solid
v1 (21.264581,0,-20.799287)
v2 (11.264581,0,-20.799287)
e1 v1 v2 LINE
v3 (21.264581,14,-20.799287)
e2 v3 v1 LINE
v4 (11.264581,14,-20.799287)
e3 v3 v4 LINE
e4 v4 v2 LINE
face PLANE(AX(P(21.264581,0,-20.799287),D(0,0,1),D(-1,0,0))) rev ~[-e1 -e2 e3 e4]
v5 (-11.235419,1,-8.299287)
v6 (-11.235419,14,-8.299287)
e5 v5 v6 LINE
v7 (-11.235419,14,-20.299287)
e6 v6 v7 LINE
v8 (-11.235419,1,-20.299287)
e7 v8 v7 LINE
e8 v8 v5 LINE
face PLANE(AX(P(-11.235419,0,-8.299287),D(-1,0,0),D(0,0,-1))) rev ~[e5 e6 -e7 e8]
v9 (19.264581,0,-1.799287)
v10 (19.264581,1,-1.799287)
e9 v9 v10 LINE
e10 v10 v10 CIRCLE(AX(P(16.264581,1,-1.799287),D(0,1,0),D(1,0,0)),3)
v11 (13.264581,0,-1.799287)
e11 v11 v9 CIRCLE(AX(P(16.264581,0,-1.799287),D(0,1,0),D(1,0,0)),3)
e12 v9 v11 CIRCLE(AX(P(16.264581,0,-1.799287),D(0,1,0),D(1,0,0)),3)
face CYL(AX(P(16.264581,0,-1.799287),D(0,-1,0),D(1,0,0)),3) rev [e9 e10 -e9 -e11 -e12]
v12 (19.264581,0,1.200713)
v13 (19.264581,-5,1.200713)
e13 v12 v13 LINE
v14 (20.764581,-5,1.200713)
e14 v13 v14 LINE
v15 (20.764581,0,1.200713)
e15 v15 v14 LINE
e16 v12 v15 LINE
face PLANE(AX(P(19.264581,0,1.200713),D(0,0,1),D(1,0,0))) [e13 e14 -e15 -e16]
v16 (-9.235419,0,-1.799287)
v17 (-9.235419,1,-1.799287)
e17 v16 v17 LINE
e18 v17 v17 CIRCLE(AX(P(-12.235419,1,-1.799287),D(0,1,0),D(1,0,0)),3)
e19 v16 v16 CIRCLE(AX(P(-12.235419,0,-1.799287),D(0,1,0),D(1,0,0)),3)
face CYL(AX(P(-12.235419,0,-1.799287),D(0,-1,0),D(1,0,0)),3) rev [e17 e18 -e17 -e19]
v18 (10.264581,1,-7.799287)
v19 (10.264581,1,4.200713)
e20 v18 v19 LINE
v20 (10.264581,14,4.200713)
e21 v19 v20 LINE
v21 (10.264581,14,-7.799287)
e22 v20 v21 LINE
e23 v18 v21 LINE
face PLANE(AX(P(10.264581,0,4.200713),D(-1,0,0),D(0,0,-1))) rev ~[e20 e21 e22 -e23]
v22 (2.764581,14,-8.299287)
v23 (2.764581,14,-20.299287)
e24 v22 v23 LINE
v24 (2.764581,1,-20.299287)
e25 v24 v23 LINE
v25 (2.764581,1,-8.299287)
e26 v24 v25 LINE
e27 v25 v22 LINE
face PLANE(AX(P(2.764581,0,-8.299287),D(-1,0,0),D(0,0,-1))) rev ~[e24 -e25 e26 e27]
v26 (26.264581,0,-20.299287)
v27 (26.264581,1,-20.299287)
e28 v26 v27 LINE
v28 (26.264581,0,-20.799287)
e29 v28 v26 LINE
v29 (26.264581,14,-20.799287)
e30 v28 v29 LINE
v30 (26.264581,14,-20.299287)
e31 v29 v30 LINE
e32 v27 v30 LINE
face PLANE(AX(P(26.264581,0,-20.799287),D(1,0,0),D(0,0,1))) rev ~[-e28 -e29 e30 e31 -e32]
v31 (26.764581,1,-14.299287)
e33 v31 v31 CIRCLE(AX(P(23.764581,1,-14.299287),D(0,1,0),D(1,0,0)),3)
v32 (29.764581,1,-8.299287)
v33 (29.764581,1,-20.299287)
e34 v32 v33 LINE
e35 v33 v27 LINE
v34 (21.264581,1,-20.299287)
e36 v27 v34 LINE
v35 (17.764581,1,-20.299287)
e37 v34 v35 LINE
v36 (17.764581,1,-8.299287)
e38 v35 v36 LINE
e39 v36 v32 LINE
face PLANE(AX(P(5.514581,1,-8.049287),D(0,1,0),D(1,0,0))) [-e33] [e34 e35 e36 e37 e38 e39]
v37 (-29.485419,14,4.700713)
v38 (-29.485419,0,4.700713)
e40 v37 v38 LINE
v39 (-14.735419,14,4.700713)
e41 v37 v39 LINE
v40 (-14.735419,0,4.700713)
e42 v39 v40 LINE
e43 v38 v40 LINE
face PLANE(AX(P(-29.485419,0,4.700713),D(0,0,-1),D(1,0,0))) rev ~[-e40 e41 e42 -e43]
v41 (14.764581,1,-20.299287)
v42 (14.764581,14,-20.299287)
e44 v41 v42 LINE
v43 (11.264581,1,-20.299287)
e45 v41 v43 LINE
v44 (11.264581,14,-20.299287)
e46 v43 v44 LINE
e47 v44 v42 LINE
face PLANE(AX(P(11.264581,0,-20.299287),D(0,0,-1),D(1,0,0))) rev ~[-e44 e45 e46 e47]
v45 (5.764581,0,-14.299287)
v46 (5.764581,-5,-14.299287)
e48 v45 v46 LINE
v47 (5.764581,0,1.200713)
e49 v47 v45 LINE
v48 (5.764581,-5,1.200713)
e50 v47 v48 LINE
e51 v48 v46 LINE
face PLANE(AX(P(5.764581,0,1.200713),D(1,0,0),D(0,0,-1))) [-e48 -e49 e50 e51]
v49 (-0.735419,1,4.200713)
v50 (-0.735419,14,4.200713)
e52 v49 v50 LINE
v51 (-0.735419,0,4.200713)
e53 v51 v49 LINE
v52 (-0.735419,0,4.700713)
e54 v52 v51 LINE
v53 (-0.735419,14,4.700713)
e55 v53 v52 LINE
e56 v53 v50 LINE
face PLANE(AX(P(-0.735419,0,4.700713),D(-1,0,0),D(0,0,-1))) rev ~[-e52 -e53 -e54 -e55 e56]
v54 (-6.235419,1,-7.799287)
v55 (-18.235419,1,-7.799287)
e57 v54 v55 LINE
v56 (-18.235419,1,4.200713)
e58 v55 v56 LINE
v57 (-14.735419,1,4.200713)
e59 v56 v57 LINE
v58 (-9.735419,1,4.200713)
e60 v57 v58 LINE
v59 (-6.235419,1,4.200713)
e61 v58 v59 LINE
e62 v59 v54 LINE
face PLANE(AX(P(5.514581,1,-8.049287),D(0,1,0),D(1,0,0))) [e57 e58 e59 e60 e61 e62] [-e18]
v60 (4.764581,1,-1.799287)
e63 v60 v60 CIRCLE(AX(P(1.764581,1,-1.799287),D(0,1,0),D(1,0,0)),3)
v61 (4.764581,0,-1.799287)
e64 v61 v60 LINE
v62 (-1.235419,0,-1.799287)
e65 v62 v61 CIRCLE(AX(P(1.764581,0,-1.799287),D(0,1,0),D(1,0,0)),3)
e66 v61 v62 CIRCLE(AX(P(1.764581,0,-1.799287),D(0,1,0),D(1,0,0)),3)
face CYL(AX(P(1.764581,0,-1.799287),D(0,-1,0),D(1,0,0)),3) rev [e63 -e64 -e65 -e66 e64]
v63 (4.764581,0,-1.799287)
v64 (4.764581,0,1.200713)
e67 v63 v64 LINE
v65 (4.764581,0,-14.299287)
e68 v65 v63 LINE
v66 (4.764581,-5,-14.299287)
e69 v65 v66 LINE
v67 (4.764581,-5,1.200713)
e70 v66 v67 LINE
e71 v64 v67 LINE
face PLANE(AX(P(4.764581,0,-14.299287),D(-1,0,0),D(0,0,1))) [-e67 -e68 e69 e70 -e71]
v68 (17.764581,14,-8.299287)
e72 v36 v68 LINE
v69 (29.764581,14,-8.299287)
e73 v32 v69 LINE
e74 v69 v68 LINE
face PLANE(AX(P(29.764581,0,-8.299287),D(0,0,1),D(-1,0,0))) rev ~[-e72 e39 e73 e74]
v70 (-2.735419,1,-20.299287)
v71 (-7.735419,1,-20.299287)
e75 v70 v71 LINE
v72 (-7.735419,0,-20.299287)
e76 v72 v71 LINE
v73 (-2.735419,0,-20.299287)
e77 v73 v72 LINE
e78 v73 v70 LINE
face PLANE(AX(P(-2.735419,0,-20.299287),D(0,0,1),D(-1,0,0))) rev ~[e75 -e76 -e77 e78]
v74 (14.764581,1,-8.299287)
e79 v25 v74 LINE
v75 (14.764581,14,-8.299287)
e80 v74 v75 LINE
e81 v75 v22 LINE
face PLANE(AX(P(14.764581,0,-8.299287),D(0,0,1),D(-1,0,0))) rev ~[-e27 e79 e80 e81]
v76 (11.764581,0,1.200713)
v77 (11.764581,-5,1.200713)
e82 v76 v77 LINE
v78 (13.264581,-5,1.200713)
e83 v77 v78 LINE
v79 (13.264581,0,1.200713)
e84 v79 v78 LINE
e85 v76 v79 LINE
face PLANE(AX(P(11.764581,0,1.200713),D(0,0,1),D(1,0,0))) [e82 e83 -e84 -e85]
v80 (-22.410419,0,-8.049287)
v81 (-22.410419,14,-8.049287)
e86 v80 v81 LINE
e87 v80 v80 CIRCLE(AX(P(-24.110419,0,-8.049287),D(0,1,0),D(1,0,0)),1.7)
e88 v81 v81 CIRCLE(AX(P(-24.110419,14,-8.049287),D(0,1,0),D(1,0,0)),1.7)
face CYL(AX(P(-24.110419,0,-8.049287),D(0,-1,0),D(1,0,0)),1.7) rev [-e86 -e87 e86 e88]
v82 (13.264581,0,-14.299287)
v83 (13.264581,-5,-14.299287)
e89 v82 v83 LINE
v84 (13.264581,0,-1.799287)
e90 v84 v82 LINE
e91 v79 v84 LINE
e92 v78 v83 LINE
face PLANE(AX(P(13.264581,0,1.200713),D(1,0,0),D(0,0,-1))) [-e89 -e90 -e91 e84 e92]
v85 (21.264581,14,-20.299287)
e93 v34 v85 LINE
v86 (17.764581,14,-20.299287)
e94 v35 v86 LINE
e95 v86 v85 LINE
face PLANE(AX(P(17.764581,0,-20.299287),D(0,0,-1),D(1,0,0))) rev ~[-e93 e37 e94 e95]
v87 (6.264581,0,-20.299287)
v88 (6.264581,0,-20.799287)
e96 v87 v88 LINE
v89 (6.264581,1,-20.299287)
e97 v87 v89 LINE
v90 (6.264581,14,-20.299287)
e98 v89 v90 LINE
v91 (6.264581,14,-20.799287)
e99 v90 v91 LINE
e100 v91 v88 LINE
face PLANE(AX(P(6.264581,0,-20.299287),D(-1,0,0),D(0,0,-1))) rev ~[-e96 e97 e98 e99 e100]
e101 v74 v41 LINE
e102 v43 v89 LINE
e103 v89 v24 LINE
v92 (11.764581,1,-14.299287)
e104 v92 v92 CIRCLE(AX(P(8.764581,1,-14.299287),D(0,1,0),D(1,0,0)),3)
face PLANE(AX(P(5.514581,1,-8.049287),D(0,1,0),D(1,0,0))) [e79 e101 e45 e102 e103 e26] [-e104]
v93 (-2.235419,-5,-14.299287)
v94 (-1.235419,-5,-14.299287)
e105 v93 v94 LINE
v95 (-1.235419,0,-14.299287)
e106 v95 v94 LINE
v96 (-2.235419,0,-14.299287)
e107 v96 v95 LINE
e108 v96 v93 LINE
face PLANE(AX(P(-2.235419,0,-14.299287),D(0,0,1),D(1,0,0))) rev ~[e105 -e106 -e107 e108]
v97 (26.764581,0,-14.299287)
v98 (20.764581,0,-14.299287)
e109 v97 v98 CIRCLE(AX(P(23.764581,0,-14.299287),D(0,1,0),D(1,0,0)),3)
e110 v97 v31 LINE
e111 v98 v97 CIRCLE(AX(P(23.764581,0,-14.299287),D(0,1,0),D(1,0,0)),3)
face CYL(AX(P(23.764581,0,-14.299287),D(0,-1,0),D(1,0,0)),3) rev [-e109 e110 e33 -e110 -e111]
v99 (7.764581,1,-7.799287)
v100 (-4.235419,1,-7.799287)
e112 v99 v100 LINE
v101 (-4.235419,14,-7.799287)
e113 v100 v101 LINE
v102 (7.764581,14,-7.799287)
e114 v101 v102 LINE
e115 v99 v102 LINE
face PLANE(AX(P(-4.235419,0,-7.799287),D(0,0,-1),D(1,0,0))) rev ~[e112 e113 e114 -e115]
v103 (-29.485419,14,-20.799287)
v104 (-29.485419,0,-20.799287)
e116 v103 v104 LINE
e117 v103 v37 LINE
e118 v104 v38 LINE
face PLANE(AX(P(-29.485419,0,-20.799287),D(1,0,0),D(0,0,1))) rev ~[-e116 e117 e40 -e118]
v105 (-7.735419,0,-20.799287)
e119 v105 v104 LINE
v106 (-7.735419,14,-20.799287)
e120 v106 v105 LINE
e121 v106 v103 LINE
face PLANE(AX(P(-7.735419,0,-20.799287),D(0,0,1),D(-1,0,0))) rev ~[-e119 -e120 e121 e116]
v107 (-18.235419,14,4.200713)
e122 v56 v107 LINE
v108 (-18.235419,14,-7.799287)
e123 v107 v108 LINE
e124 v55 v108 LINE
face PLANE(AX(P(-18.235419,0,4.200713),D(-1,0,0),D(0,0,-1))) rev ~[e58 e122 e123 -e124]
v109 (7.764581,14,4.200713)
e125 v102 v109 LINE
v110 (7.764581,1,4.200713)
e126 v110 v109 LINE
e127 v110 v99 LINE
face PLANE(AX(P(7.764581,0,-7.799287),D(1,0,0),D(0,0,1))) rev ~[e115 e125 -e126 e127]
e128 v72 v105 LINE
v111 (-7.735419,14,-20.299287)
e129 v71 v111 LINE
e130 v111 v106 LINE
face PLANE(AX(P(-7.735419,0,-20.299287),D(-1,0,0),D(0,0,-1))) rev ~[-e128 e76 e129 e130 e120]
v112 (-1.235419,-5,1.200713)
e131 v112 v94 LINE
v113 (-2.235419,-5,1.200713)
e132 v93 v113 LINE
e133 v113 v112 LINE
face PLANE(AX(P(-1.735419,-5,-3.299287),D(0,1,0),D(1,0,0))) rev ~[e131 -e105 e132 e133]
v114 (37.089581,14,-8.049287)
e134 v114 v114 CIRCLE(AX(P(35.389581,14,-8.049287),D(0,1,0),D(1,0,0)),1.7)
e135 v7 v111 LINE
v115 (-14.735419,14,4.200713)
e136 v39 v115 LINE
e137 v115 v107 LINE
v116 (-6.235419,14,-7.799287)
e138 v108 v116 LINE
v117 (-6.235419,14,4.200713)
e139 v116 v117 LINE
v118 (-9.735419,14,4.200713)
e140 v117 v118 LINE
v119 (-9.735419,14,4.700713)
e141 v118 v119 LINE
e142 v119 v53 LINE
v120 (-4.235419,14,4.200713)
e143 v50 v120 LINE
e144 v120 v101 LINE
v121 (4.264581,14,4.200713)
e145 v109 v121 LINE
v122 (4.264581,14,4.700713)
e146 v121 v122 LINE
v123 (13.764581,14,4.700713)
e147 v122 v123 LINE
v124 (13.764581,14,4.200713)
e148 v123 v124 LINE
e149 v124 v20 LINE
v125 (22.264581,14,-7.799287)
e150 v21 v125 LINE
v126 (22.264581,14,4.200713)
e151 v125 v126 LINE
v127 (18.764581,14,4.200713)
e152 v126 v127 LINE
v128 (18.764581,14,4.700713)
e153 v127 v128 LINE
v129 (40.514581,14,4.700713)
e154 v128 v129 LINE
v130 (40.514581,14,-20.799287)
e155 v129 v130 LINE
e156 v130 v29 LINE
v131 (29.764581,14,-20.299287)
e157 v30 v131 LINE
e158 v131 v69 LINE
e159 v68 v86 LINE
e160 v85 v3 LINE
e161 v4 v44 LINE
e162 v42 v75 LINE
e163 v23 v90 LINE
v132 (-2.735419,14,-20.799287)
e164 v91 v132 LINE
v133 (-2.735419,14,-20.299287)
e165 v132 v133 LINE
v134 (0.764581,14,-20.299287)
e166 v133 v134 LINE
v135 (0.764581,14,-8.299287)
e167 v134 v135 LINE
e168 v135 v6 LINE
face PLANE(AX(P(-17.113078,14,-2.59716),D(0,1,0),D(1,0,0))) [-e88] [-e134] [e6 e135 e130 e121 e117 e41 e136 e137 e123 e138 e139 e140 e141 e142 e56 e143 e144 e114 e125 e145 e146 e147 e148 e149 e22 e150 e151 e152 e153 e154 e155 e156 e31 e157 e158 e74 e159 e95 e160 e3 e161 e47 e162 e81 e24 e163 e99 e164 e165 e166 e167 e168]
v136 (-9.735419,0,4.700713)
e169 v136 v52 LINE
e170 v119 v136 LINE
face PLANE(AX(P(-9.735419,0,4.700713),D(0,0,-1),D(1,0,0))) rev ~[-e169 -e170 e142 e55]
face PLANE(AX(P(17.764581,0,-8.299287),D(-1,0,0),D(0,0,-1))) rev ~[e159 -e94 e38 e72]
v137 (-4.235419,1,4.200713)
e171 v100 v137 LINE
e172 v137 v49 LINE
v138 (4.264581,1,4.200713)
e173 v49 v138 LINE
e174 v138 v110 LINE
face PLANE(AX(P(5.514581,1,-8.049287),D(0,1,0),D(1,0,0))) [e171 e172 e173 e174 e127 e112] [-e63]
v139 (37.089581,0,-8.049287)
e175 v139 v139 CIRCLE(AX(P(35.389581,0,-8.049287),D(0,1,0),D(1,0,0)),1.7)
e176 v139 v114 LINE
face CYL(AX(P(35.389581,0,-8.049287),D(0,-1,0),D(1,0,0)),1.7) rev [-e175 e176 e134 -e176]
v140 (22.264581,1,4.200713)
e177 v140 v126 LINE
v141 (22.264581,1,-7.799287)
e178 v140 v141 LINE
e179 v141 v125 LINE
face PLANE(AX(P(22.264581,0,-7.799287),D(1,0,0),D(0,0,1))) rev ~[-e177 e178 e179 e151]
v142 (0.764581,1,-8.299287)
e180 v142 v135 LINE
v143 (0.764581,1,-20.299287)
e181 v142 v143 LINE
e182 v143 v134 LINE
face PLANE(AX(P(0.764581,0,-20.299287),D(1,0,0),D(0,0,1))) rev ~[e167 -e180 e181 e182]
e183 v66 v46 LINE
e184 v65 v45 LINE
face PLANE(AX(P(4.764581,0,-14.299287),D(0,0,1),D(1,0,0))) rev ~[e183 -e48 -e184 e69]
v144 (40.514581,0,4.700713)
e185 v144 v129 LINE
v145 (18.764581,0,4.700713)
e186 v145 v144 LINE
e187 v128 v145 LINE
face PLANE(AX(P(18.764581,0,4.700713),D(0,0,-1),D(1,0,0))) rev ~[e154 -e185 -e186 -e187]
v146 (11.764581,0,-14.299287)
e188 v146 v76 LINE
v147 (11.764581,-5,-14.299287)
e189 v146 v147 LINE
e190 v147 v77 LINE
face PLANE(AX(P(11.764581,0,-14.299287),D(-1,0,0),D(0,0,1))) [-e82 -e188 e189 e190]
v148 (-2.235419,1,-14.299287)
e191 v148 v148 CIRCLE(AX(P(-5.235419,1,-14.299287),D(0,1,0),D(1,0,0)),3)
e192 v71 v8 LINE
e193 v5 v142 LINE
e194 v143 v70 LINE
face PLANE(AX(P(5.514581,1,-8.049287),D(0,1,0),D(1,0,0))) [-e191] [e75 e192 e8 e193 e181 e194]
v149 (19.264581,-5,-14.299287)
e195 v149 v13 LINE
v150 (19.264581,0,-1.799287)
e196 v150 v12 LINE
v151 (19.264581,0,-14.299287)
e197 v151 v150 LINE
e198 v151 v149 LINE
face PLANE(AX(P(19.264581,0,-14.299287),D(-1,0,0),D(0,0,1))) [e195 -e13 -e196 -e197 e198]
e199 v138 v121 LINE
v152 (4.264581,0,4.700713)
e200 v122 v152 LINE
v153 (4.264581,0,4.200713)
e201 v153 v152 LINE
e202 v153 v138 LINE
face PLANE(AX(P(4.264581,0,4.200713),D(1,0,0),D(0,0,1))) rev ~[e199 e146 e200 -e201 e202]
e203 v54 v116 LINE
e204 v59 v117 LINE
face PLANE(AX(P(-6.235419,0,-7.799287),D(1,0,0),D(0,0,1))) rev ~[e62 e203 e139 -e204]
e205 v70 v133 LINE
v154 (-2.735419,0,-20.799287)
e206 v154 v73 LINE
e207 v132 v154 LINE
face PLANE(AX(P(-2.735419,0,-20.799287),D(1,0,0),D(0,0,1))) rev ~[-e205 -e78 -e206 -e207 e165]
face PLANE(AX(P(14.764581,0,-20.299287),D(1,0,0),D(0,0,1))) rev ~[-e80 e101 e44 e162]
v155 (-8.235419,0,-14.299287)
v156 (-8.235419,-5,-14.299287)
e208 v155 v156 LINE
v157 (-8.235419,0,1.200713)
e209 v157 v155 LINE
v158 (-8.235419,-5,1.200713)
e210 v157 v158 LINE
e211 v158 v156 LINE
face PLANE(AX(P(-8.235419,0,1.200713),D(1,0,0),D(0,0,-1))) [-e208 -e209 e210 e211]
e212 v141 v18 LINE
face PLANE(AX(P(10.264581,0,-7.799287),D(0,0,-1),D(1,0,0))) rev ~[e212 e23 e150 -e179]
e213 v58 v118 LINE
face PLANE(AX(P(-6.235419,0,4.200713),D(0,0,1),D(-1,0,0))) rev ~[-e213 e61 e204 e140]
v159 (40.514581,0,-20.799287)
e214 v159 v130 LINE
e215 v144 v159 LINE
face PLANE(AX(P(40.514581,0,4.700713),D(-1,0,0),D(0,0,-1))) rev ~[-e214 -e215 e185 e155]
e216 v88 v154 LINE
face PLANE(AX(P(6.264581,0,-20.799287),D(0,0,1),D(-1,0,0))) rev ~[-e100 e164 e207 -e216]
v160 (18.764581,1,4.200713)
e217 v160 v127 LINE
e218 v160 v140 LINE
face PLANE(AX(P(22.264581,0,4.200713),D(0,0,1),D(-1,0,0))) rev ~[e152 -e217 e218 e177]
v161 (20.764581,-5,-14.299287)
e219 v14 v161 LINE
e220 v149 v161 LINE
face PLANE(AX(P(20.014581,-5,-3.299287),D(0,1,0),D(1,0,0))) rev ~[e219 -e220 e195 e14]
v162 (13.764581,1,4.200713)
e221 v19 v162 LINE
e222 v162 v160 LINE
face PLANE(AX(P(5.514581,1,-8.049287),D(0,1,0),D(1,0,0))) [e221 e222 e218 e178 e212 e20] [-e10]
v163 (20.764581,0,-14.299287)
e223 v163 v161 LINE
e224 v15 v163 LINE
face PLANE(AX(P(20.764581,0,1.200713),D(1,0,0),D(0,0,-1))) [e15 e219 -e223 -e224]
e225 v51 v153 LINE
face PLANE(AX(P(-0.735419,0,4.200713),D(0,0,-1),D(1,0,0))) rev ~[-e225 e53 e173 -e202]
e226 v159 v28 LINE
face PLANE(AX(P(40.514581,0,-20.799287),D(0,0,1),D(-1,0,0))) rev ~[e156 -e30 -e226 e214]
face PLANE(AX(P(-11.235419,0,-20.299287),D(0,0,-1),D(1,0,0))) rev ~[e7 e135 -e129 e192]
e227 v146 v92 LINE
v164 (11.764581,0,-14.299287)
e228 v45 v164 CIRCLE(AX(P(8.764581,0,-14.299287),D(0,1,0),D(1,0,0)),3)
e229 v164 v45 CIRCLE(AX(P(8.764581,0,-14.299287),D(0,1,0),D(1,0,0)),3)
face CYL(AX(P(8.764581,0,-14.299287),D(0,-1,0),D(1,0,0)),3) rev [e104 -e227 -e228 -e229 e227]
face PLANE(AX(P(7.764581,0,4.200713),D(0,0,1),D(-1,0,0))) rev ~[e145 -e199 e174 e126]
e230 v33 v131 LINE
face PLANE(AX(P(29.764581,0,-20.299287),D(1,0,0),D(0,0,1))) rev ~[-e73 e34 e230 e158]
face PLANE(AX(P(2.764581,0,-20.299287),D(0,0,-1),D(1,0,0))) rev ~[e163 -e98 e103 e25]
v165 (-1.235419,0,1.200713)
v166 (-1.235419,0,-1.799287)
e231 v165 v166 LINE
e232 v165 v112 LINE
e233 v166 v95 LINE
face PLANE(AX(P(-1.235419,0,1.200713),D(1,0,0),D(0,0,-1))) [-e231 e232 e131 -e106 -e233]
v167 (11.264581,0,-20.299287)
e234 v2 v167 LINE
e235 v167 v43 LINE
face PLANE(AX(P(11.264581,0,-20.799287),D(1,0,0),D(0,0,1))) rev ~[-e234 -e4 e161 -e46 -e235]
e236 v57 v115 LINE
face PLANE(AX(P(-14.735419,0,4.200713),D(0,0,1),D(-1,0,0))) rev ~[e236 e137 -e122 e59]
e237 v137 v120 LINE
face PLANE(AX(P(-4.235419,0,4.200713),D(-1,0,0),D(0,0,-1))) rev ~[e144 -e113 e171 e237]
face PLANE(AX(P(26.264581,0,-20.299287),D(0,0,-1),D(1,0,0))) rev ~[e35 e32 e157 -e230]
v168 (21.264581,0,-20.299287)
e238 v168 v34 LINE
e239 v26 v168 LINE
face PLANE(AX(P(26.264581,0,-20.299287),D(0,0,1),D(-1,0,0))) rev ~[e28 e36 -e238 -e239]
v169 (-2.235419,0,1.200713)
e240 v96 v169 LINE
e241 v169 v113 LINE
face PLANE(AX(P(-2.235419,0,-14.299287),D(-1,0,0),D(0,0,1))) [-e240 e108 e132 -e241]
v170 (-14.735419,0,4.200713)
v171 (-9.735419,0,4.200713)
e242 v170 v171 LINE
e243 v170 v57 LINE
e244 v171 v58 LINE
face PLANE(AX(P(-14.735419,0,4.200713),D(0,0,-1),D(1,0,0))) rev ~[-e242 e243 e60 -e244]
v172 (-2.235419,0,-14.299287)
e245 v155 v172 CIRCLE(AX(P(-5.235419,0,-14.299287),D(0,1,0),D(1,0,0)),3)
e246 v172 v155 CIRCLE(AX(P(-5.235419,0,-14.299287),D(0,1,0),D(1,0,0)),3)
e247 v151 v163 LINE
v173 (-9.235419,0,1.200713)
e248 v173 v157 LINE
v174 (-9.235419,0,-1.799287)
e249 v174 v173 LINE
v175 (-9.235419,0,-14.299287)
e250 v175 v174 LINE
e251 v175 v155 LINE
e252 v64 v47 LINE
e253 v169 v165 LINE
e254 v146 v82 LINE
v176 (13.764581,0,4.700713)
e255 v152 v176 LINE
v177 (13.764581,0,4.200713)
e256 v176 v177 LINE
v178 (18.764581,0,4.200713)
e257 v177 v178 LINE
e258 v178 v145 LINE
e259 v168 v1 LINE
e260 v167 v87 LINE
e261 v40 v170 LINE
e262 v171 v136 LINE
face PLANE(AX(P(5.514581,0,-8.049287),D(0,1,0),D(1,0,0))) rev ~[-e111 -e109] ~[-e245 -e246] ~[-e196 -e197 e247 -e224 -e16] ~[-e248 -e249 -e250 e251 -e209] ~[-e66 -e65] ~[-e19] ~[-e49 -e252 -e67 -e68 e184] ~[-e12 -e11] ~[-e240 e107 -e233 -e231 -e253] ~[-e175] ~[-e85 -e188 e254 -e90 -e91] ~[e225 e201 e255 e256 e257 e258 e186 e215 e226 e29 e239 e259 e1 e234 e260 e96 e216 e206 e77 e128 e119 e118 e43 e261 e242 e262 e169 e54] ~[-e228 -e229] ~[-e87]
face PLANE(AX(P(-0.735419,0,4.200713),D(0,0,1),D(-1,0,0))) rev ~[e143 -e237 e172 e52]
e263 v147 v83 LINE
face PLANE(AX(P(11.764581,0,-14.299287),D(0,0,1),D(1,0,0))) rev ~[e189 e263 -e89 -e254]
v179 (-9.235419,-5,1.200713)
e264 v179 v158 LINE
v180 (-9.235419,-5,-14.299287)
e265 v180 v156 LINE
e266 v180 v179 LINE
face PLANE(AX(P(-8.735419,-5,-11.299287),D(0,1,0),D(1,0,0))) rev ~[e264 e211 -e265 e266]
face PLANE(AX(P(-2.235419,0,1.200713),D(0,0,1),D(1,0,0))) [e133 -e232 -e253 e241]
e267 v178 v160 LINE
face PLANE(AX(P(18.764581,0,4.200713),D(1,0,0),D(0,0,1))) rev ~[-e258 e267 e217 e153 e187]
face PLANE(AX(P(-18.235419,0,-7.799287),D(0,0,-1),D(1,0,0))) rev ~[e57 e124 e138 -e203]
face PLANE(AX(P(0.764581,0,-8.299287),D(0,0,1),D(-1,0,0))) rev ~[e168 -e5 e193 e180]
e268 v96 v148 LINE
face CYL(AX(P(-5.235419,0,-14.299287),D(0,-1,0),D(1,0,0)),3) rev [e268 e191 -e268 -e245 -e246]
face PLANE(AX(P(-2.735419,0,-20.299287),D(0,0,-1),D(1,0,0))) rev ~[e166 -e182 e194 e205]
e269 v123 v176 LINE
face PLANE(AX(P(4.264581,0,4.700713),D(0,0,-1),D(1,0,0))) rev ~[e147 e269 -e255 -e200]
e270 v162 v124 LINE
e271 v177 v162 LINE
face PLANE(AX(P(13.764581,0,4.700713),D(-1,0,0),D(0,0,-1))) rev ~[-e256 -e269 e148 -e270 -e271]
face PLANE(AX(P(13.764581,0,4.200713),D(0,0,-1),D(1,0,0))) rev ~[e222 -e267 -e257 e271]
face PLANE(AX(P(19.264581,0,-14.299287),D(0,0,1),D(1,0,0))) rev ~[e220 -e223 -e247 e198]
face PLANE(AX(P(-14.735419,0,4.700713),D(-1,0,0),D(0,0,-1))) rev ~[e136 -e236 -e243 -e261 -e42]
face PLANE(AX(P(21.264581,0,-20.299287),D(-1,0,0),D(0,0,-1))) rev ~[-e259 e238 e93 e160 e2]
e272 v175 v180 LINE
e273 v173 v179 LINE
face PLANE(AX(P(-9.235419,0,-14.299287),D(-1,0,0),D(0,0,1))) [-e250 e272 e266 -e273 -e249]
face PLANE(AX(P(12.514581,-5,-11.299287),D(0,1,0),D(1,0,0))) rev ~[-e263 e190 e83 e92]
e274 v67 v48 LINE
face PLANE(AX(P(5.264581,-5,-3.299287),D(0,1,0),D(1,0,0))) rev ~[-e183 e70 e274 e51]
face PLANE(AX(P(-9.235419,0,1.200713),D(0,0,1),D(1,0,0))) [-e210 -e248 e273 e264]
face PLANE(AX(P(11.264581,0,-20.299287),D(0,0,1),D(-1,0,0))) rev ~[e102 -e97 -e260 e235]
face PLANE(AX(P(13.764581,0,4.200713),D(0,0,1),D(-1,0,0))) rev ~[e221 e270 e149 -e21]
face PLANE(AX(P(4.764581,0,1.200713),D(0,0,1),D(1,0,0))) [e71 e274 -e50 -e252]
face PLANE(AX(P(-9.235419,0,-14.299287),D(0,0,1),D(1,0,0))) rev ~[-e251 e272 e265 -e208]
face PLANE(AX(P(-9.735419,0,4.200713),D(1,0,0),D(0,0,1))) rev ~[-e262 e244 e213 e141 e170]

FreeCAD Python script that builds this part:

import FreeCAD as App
import Part
import Sketcher

V = App.Vector
Q = App.Units.Quantity


def add_polygon(sketch, points):
    """Adds a closed chain of lines whose ends are joined by coincident constraints."""
    first, n = sketch.GeometryCount, len(points)
    for a, b in zip(points, points[1:] + points[:1]):
        sketch.addGeometry(Part.LineSegment(App.Vector(*a, 0), App.Vector(*b, 0)), False)
    for i in range(n):
        sketch.addConstraint(Sketcher.Constraint("Coincident", first + i, 2, first + (i + 1) % n, 1))

doc = App.newDocument("Part")
body = doc.addObject("PartDesign::Body", "Body")

# Sketch on XZ plane
sketch1 = doc.addObject("Sketcher::SketchObject", "Sketch")
body.addObject(sketch1)
sketch1.AttachmentSupport = (doc.XZ_Plane, [""])
sketch1.MapMode = "FlatFace"
add_polygon(sketch1, [(18.8, 4.7), (40.5, 4.7), (40.5, -20.8), (26.3, -20.8), (26.3, -20.3), (21.3, -20.3), (21.3, -20.8), (11.3, -20.8), (11.3, -20.3), (6.3, -20.3), (6.3, -20.8), (-2.7, -20.8), (-2.7, -20.3), (-7.7, -20.3), (-7.7, -20.8), (-29.5, -20.8), (-29.5, 4.7), (-14.7, 4.7), (-14.7, 4.2), (-9.7, 4.2), (-9.7, 4.7), (-0.7, 4.7), (-0.7, 4.2), (4.3, 4.2), (4.3, 4.7), (13.8, 4.7), (13.8, 4.2), (18.8, 4.2)])  # lines 0-27
sketch1.addGeometry(Part.Circle(V(-12.2, -1.8, 0), V(0, 0, 1), 3), False)  # 28
sketch1.addGeometry(Part.Circle(V(1.8, -1.8, 0), V(0, 0, 1), 3), False)  # 29
sketch1.addGeometry(Part.Circle(V(16.3, -1.8, 0), V(0, 0, 1), 3), False)  # 30
sketch1.addGeometry(Part.Circle(V(-24.1, -8, 0), V(0, 0, 1), 1.7), False)  # 31
sketch1.addGeometry(Part.Circle(V(-5.2, -14.3, 0), V(0, 0, 1), 3), False)  # 32
sketch1.addGeometry(Part.Circle(V(35.4, -8, 0), V(0, 0, 1), 1.7), False)  # 33
sketch1.addGeometry(Part.Circle(V(8.8, -14.3, 0), V(0, 0, 1), 3), False)  # 34
sketch1.addGeometry(Part.Circle(V(23.8, -14.3, 0), V(0, 0, 1), 3), False)  # 35
sketch1.addConstraint(Sketcher.Constraint("Horizontal", 0))
sketch1.addConstraint(Sketcher.Constraint("Vertical", 1))
sketch1.addConstraint(Sketcher.Constraint("Horizontal", 2))
sketch1.addConstraint(Sketcher.Constraint("Vertical", 3))
sketch1.addConstraint(Sketcher.Constraint("Horizontal", 4))
sketch1.addConstraint(Sketcher.Constraint("Vertical", 5))
sketch1.addConstraint(Sketcher.Constraint("Horizontal", 6))
sketch1.addConstraint(Sketcher.Constraint("Vertical", 7))
sketch1.addConstraint(Sketcher.Constraint("Horizontal", 8))
sketch1.addConstraint(Sketcher.Constraint("Vertical", 9))
sketch1.addConstraint(Sketcher.Constraint("Horizontal", 10))
sketch1.addConstraint(Sketcher.Constraint("Vertical", 11))
sketch1.addConstraint(Sketcher.Constraint("Horizontal", 12))
sketch1.addConstraint(Sketcher.Constraint("Vertical", 13))
sketch1.addConstraint(Sketcher.Constraint("Horizontal", 14))
sketch1.addConstraint(Sketcher.Constraint("Vertical", 15))
sketch1.addConstraint(Sketcher.Constraint("Horizontal", 16))
sketch1.addConstraint(Sketcher.Constraint("Vertical", 17))
sketch1.addConstraint(Sketcher.Constraint("Horizontal", 18))
sketch1.addConstraint(Sketcher.Constraint("Vertical", 19))
sketch1.addConstraint(Sketcher.Constraint("Horizontal", 20))
sketch1.addConstraint(Sketcher.Constraint("Vertical", 21))
sketch1.addConstraint(Sketcher.Constraint("Horizontal", 22))
sketch1.addConstraint(Sketcher.Constraint("Vertical", 23))
sketch1.addConstraint(Sketcher.Constraint("Horizontal", 24))
sketch1.addConstraint(Sketcher.Constraint("Vertical", 25))
sketch1.addConstraint(Sketcher.Constraint("Horizontal", 26))
sketch1.addConstraint(Sketcher.Constraint("Vertical", 27))
sketch1.addConstraint(Sketcher.Constraint("Equal", 28, 29))
sketch1.addConstraint(Sketcher.Constraint("Equal", 29, 30))
sketch1.addConstraint(Sketcher.Constraint("Equal", 30, 32))
sketch1.addConstraint(Sketcher.Constraint("Equal", 31, 33))
sketch1.addConstraint(Sketcher.Constraint("Equal", 32, 34))
sketch1.addConstraint(Sketcher.Constraint("Equal", 34, 35))
sketch1.addConstraint(Sketcher.Constraint("Horizontal", 28, 3, 29, 3))
sketch1.addConstraint(Sketcher.Constraint("Horizontal", 29, 3, 30, 3))
sketch1.addConstraint(Sketcher.Constraint("Horizontal", 31, 3, 33, 3))
sketch1.addConstraint(Sketcher.Constraint("Horizontal", 32, 3, 34, 3))
sketch1.addConstraint(Sketcher.Constraint("Horizontal", 34, 3, 35, 3))
sketch1.addConstraint(Sketcher.Constraint("Horizontal", 2, 2, 5, 2))
sketch1.addConstraint(Sketcher.Constraint("Horizontal", 4, 2, 7, 2))
sketch1.addConstraint(Sketcher.Constraint("Horizontal", 6, 2, 9, 2))
sketch1.addConstraint(Sketcher.Constraint("Horizontal", 8, 2, 11, 2))
sketch1.addConstraint(Sketcher.Constraint("Horizontal", 10, 2, 13, 2))
sketch1.addConstraint(Sketcher.Constraint("Horizontal", 0, 2, 15, 2))
sketch1.addConstraint(Sketcher.Constraint("Horizontal", 16, 2, 19, 2))
sketch1.addConstraint(Sketcher.Constraint("Horizontal", 18, 2, 21, 2))
sketch1.addConstraint(Sketcher.Constraint("Horizontal", 20, 2, 23, 2))
sketch1.addConstraint(Sketcher.Constraint("Horizontal", 22, 2, 25, 2))
sketch1.addConstraint(Sketcher.Constraint("Equal", 4, 8))
sketch1.addConstraint(Sketcher.Constraint("Equal", 8, 12))
sketch1.addConstraint(Sketcher.Constraint("Equal", 0, 14))
sketch1.addConstraint(Sketcher.Constraint("Equal", 12, 18))
sketch1.addConstraint(Sketcher.Constraint("Equal", 10, 20))
sketch1.addConstraint(Sketcher.Constraint("Equal", 18, 22))
sketch1.addConstraint(Sketcher.Constraint("Equal", 22, 26))
sketch1.addConstraint(Sketcher.Constraint("Equal", 13, 17))
sketch1.addConstraint(Sketcher.Constraint("Diameter", 28, Q("6 mm")))
sketch1.addConstraint(Sketcher.Constraint("Diameter", 31, Q("3.4 mm")))
sketch1.addConstraint(Sketcher.Constraint("DistanceX", 4, 2, 4, 1, Q("5 mm")))
sketch1.addConstraint(Sketcher.Constraint("DistanceX", 6, 2, 6, 1, Q("10 mm")))
sketch1.addConstraint(Sketcher.Constraint("DistanceX", 10, 2, 10, 1, Q("9 mm")))
sketch1.addConstraint(Sketcher.Constraint("DistanceX", 24, 1, 24, 2, Q("9.5 mm")))
sketch1.addConstraint(Sketcher.Constraint("DistanceY", 1, 2, 1, 1, Q("25.5 mm")))
sketch1.addConstraint(Sketcher.Constraint("DistanceY", 3, 1, 3, 2, Q("0.5 mm")))
sketch1.addConstraint(Sketcher.Constraint("DistanceX", 28, 3, 29, 3, Q("14 mm")))
sketch1.addConstraint(Sketcher.Constraint("DistanceX", 28, 3, 32, 3, Q("7 mm")))
sketch1.addConstraint(Sketcher.Constraint("DistanceX", 32, 3, 34, 3, Q("14 mm")))
sketch1.addConstraint(Sketcher.Constraint("DistanceX", 34, 3, 35, 3, Q("15 mm")))
sketch1.addConstraint(Sketcher.Constraint("DistanceY", 35, 3, 0, 2, Q("19 mm")))
sketch1.addConstraint(Sketcher.Constraint("DistanceY", 1, 2, 30, 3, Q("19 mm")))
sketch1.addConstraint(Sketcher.Constraint("DistanceX", 30, 3, 2, 2, Q("10 mm")))
sketch1.addConstraint(Sketcher.Constraint("DistanceX", 22, 2, 30, 3, Q("12 mm")))
sketch1.addConstraint(Sketcher.Constraint("DistanceX", 29, 3, 24, 2, Q("12 mm")))
sketch1.addConstraint(Sketcher.Constraint("DistanceX", 0, 1, 0, 2, Q("21.75 mm")))
sketch1.addConstraint(Sketcher.Constraint("DistanceX", 31, 3, 33, 3, Q("59.5 mm")))
sketch1.addConstraint(Sketcher.Constraint("DistanceY", 31, 3, 28, 3, Q("6.25 mm")))
sketch1.addConstraint(Sketcher.Constraint("DistanceX", 31, 3, 28, 3, Q("11.875 mm")))
sketch1.addConstraint(Sketcher.Constraint("DistanceX", 28, 3, -1, 1, Q("12.235419 mm")))
sketch1.addConstraint(Sketcher.Constraint("DistanceY", 28, 3, -1, 1, Q("1.799287 mm")))
pad1 = doc.addObject("PartDesign::Pad", "Pad")
body.addObject(pad1)
pad1.Profile = sketch1
pad1.Length = 1
pad1.Reversed = True

# Sketch on XZ plane
sketch2 = doc.addObject("Sketcher::SketchObject", "Sketch001")
body.addObject(sketch2)
sketch2.AttachmentSupport = (doc.XZ_Plane, [""])
sketch2.MapMode = "FlatFace"
add_polygon(sketch2, [(-18.2, 4.2), (-18.2, -7.8), (-6.2, -7.8), (-6.2, 4.2), (-9.7, 4.2), (-9.7, 4.7), (-0.7, 4.7), (-0.7, 4.2), (-4.2, 4.2), (-4.2, -7.8), (7.8, -7.8), (7.8, 4.2), (4.3, 4.2), (4.3, 4.7), (13.8, 4.7), (13.8, 4.2), (10.3, 4.2), (10.3, -7.8), (22.3, -7.8), (22.3, 4.2), (18.8, 4.2), (18.8, 4.7), (40.5, 4.7), (40.5, -20.8), (26.3, -20.8), (26.3, -20.3), (29.8, -20.3), (29.8, -8.3), (17.8, -8.3), (17.8, -20.3), (21.3, -20.3), (21.3, -20.8), (11.3, -20.8), (11.3, -20.3), (14.8, -20.3), (14.8, -8.3), (2.8, -8.3), (2.8, -20.3), (6.3, -20.3), (6.3, -20.8), (-2.7, -20.8), (-2.7, -20.3), (0.8, -20.3), (0.8, -8.3), (-11.2, -8.3), (-11.2, -20.3), (-7.7, -20.3), (-7.7, -20.8), (-29.5, -20.8), (-29.5, 4.7), (-14.7, 4.7), (-14.7, 4.2)])  # lines 0-51
sketch2.addGeometry(Part.Circle(V(-24.1, -8, 0), V(0, 0, 1), 1.7), False)  # 52
sketch2.addGeometry(Part.Circle(V(35.4, -8, 0), V(0, 0, 1), 1.7), False)  # 53
sketch2.addConstraint(Sketcher.Constraint("Vertical", 0))
sketch2.addConstraint(Sketcher.Constraint("Horizontal", 1))
sketch2.addConstraint(Sketcher.Constraint("Vertical", 2))
sketch2.addConstraint(Sketcher.Constraint("Horizontal", 3))
sketch2.addConstraint(Sketcher.Constraint("Vertical", 4))
sketch2.addConstraint(Sketcher.Constraint("Horizontal", 5))
sketch2.addConstraint(Sketcher.Constraint("Vertical", 6))
sketch2.addConstraint(Sketcher.Constraint("Horizontal", 7))
sketch2.addConstraint(Sketcher.Constraint("Vertical", 8))
sketch2.addConstraint(Sketcher.Constraint("Horizontal", 9))
sketch2.addConstraint(Sketcher.Constraint("Vertical", 10))
sketch2.addConstraint(Sketcher.Constraint("Horizontal", 11))
sketch2.addConstraint(Sketcher.Constraint("Vertical", 12))
sketch2.addConstraint(Sketcher.Constraint("Horizontal", 13))
sketch2.addConstraint(Sketcher.Constraint("Vertical", 14))
sketch2.addConstraint(Sketcher.Constraint("Horizontal", 15))
sketch2.addConstraint(Sketcher.Constraint("Vertical", 16))
sketch2.addConstraint(Sketcher.Constraint("Horizontal", 17))
sketch2.addConstraint(Sketcher.Constraint("Vertical", 18))
sketch2.addConstraint(Sketcher.Constraint("Horizontal", 19))
sketch2.addConstraint(Sketcher.Constraint("Vertical", 20))
sketch2.addConstraint(Sketcher.Constraint("Horizontal", 21))
sketch2.addConstraint(Sketcher.Constraint("Vertical", 22))
sketch2.addConstraint(Sketcher.Constraint("Horizontal", 23))
sketch2.addConstraint(Sketcher.Constraint("Vertical", 24))
sketch2.addConstraint(Sketcher.Constraint("Horizontal", 25))
sketch2.addConstraint(Sketcher.Constraint("Vertical", 26))
sketch2.addConstraint(Sketcher.Constraint("Horizontal", 27))
sketch2.addConstraint(Sketcher.Constraint("Vertical", 28))
sketch2.addConstraint(Sketcher.Constraint("Horizontal", 29))
sketch2.addConstraint(Sketcher.Constraint("Vertical", 30))
sketch2.addConstraint(Sketcher.Constraint("Horizontal", 31))
sketch2.addConstraint(Sketcher.Constraint("Vertical", 32))
sketch2.addConstraint(Sketcher.Constraint("Horizontal", 33))
sketch2.addConstraint(Sketcher.Constraint("Vertical", 34))
sketch2.addConstraint(Sketcher.Constraint("Horizontal", 35))
sketch2.addConstraint(Sketcher.Constraint("Vertical", 36))
sketch2.addConstraint(Sketcher.Constraint("Horizontal", 37))
sketch2.addConstraint(Sketcher.Constraint("Vertical", 38))
sketch2.addConstraint(Sketcher.Constraint("Horizontal", 39))
sketch2.addConstraint(Sketcher.Constraint("Vertical", 40))
sketch2.addConstraint(Sketcher.Constraint("Horizontal", 41))
sketch2.addConstraint(Sketcher.Constraint("Vertical", 42))
sketch2.addConstraint(Sketcher.Constraint("Horizontal", 43))
sketch2.addConstraint(Sketcher.Constraint("Vertical", 44))
sketch2.addConstraint(Sketcher.Constraint("Horizontal", 45))
sketch2.addConstraint(Sketcher.Constraint("Vertical", 46))
sketch2.addConstraint(Sketcher.Constraint("Horizontal", 47))
sketch2.addConstraint(Sketcher.Constraint("Vertical", 48))
sketch2.addConstraint(Sketcher.Constraint("Horizontal", 49))
sketch2.addConstraint(Sketcher.Constraint("Vertical", 50))
sketch2.addConstraint(Sketcher.Constraint("Horizontal", 51))
sketch2.addConstraint(Sketcher.Constraint("Equal", 52, 53))
sketch2.addConstraint(Sketcher.Constraint("Horizontal", 52, 3, 53, 3))
sketch2.addConstraint(Sketcher.Constraint("Horizontal", 3, 2, 6, 2))
sketch2.addConstraint(Sketcher.Constraint("Horizontal", 1, 2, 8, 2))
sketch2.addConstraint(Sketcher.Constraint("Horizontal", 7, 2, 10, 2))
sketch2.addConstraint(Sketcher.Constraint("Horizontal", 5, 2, 12, 2))
sketch2.addConstraint(Sketcher.Constraint("Horizontal", 11, 2, 14, 2))
sketch2.addConstraint(Sketcher.Constraint("Horizontal", 9, 2, 16, 2))
sketch2.addConstraint(Sketcher.Constraint("Horizontal", 15, 2, 18, 2))
sketch2.addConstraint(Sketcher.Constraint("Horizontal", 13, 2, 20, 2))
sketch2.addConstraint(Sketcher.Constraint("Horizontal", 25, 2, 28, 2))
sketch2.addConstraint(Sketcher.Constraint("Horizontal", 23, 2, 30, 2))
sketch2.addConstraint(Sketcher.Constraint("Horizontal", 29, 2, 32, 2))
sketch2.addConstraint(Sketcher.Constraint("Horizontal", 27, 2, 34, 2))
sketch2.addConstraint(Sketcher.Constraint("Horizontal", 33, 2, 36, 2))
sketch2.addConstraint(Sketcher.Constraint("Horizontal", 31, 2, 38, 2))
sketch2.addConstraint(Sketcher.Constraint("Horizontal", 37, 2, 40, 2))
sketch2.addConstraint(Sketcher.Constraint("Horizontal", 35, 2, 42, 2))
sketch2.addConstraint(Sketcher.Constraint("Horizontal", 41, 2, 44, 2))
sketch2.addConstraint(Sketcher.Constraint("Horizontal", 39, 2, 46, 2))
sketch2.addConstraint(Sketcher.Constraint("Horizontal", 21, 2, 48, 2))
sketch2.addConstraint(Sketcher.Constraint("Horizontal", 19, 2, 50, 2))
sketch2.addConstraint(Sketcher.Constraint("Equal", 3, 7))
sketch2.addConstraint(Sketcher.Constraint("Equal", 1, 9))
sketch2.addConstraint(Sketcher.Constraint("Equal", 7, 11))
sketch2.addConstraint(Sketcher.Constraint("Equal", 11, 15))
sketch2.addConstraint(Sketcher.Constraint("Equal", 9, 17))
sketch2.addConstraint(Sketcher.Constraint("Equal", 15, 19))
sketch2.addConstraint(Sketcher.Constraint("Equal", 19, 25))
sketch2.addConstraint(Sketcher.Constraint("Equal", 17, 27))
sketch2.addConstraint(Sketcher.Constraint("Equal", 25, 29))
sketch2.addConstraint(Sketcher.Constraint("Equal", 29, 33))
sketch2.addConstraint(Sketcher.Constraint("Equal", 27, 35))
sketch2.addConstraint(Sketcher.Constraint("Equal", 33, 37))
sketch2.addConstraint(Sketcher.Constraint("Equal", 5, 39))
sketch2.addConstraint(Sketcher.Constraint("Equal", 37, 41))
sketch2.addConstraint(Sketcher.Constraint("Equal", 35, 43))
sketch2.addConstraint(Sketcher.Constraint("Equal", 41, 45))
sketch2.addConstraint(Sketcher.Constraint("Equal", 21, 47))
sketch2.addConstraint(Sketcher.Constraint("Equal", 45, 51))
sketch2.addConstraint(Sketcher.Constraint("Equal", 43, 0))
sketch2.addConstraint(Sketcher.Constraint("Equal", 20, 24))
sketch2.addConstraint(Sketcher.Constraint("Equal", 18, 26))
sketch2.addConstraint(Sketcher.Constraint("Diameter", 52, Q("3.4 mm")))
sketch2.addConstraint(Sketcher.Constraint("DistanceX", 1, 1, 1, 2, Q("12 mm")))
sketch2.addConstraint(Sketcher.Constraint("DistanceX", 5, 1, 5, 2, Q("9 mm")))
sketch2.addConstraint(Sketcher.Constraint("DistanceX", 31, 2, 31, 1, Q("10 mm")))
sketch2.addConstraint(Sketcher.Constraint("DistanceX", 3, 2, 3, 1, Q("3.5 mm")))
sketch2.addConstraint(Sketcher.Constraint("DistanceX", 13, 1, 13, 2, Q("9.5 mm")))
sketch2.addConstraint(Sketcher.Constraint("DistanceY", 4, 1, 4, 2, Q("0.5 mm")))
sketch2.addConstraint(Sketcher.Constraint("DistanceY", 22, 2, 22, 1, Q("25.5 mm")))
sketch2.addConstraint(Sketcher.Constraint("DistanceX", 17, 2, 23, 2, Q("4 mm")))
sketch2.addConstraint(Sketcher.Constraint("DistanceX", 21, 1, 21, 2, Q("21.75 mm")))
sketch2.addConstraint(Sketcher.Constraint("DistanceX", 52, 3, 53, 3, Q("59.5 mm")))
sketch2.addConstraint(Sketcher.Constraint("DistanceY", 52, 3, 0, 2, Q("0.25 mm")))
sketch2.addConstraint(Sketcher.Constraint("DistanceX", 52, 3, 0, 2, Q("5.875 mm")))
sketch2.addConstraint(Sketcher.Constraint("DistanceX", 52, 3, -1, 1, Q("24.110419 mm")))
sketch2.addConstraint(Sketcher.Constraint("DistanceY", 52, 3, -1, 1, Q("8.049287 mm")))
pad2 = doc.addObject("PartDesign::Pad", "Pad001")
body.addObject(pad2)
pad2.Profile = sketch2
pad2.Length = 14
pad2.Reversed = True

# Sketch on XZ plane
sketch3 = doc.addObject("Sketcher::SketchObject", "Sketch002")
body.addObject(sketch3)
sketch3.AttachmentSupport = (doc.XZ_Plane, [""])
sketch3.MapMode = "FlatFace"
add_polygon(sketch3, [(-9.2, -14.3), (-9.2, 1.2), (-8.2, 1.2), (-8.2, -14.3)])  # lines 0-3
add_polygon(sketch3, [(-2.2, 1.2), (-1.2, 1.2), (-1.2, -14.3), (-2.2, -14.3)])  # lines 4-7
add_polygon(sketch3, [(4.8, 1.2), (5.8, 1.2), (5.8, -14.3), (4.8, -14.3)])  # lines 8-11
add_polygon(sketch3, [(11.8, -14.3), (11.8, 1.2), (13.3, 1.2), (13.3, -14.3)])  # lines 12-15
add_polygon(sketch3, [(19.3, 1.2), (20.8, 1.2), (20.8, -14.3), (19.3, -14.3)])  # lines 16-19
sketch3.addConstraint(Sketcher.Constraint("Vertical", 0))
sketch3.addConstraint(Sketcher.Constraint("Horizontal", 1))
sketch3.addConstraint(Sketcher.Constraint("Vertical", 2))
sketch3.addConstraint(Sketcher.Constraint("Horizontal", 3))
sketch3.addConstraint(Sketcher.Constraint("Horizontal", 4))
sketch3.addConstraint(Sketcher.Constraint("Vertical", 5))
sketch3.addConstraint(Sketcher.Constraint("Horizontal", 6))
sketch3.addConstraint(Sketcher.Constraint("Vertical", 7))
sketch3.addConstraint(Sketcher.Constraint("Horizontal", 8))
sketch3.addConstraint(Sketcher.Constraint("Vertical", 9))
sketch3.addConstraint(Sketcher.Constraint("Horizontal", 10))
sketch3.addConstraint(Sketcher.Constraint("Vertical", 11))
sketch3.addConstraint(Sketcher.Constraint("Vertical", 12))
sketch3.addConstraint(Sketcher.Constraint("Horizontal", 13))
sketch3.addConstraint(Sketcher.Constraint("Vertical", 14))
sketch3.addConstraint(Sketcher.Constraint("Horizontal", 15))
sketch3.addConstraint(Sketcher.Constraint("Horizontal", 16))
sketch3.addConstraint(Sketcher.Constraint("Vertical", 17))
sketch3.addConstraint(Sketcher.Constraint("Horizontal", 18))
sketch3.addConstraint(Sketcher.Constraint("Vertical", 19))
sketch3.addConstraint(Sketcher.Constraint("Horizontal", 1, 2, 4, 2))
sketch3.addConstraint(Sketcher.Constraint("Horizontal", 3, 2, 5, 2))
sketch3.addConstraint(Sketcher.Constraint("Horizontal", 7, 2, 8, 2))
sketch3.addConstraint(Sketcher.Constraint("Horizontal", 6, 2, 9, 2))
sketch3.addConstraint(Sketcher.Constraint("Horizontal", 11, 2, 12, 2))
sketch3.addConstraint(Sketcher.Constraint("Horizontal", 10, 2, 14, 2))
sketch3.addConstraint(Sketcher.Constraint("Horizontal", 13, 2, 16, 2))
sketch3.addConstraint(Sketcher.Constraint("Horizontal", 15, 2, 17, 2))
sketch3.addConstraint(Sketcher.Constraint("Equal", 3, 4))
sketch3.addConstraint(Sketcher.Constraint("Equal", 6, 8))
sketch3.addConstraint(Sketcher.Constraint("Equal", 15, 16))
sketch3.addConstraint(Sketcher.Constraint("DistanceX", 1, 1, 1, 2, Q("1 mm")))
sketch3.addConstraint(Sketcher.Constraint("DistanceX", 13, 1, 13, 2, Q("1.5 mm")))
sketch3.addConstraint(Sketcher.Constraint("DistanceY", 0, 1, 0, 2, Q("15.5 mm")))
sketch3.addConstraint(Sketcher.Constraint("DistanceX", 1, 2, 4, 2, Q("7 mm")))
sketch3.addConstraint(Sketcher.Constraint("DistanceX", 4, 2, 8, 2, Q("7 mm")))
sketch3.addConstraint(Sketcher.Constraint("DistanceX", 8, 2, 12, 2, Q("6 mm")))
sketch3.addConstraint(Sketcher.Constraint("DistanceX", 12, 2, 16, 2, Q("9 mm")))
sketch3.addConstraint(Sketcher.Constraint("DistanceX", 0, 2, -1, 1, Q("9.235419 mm")))
sketch3.addConstraint(Sketcher.Constraint("DistanceY", -1, 1, 0, 2, Q("1.200713 mm")))
pad3 = doc.addObject("PartDesign::Pad", "Pad002")
body.addObject(pad3)
pad3.Profile = sketch3
pad3.Length = 5

doc.recompute()
